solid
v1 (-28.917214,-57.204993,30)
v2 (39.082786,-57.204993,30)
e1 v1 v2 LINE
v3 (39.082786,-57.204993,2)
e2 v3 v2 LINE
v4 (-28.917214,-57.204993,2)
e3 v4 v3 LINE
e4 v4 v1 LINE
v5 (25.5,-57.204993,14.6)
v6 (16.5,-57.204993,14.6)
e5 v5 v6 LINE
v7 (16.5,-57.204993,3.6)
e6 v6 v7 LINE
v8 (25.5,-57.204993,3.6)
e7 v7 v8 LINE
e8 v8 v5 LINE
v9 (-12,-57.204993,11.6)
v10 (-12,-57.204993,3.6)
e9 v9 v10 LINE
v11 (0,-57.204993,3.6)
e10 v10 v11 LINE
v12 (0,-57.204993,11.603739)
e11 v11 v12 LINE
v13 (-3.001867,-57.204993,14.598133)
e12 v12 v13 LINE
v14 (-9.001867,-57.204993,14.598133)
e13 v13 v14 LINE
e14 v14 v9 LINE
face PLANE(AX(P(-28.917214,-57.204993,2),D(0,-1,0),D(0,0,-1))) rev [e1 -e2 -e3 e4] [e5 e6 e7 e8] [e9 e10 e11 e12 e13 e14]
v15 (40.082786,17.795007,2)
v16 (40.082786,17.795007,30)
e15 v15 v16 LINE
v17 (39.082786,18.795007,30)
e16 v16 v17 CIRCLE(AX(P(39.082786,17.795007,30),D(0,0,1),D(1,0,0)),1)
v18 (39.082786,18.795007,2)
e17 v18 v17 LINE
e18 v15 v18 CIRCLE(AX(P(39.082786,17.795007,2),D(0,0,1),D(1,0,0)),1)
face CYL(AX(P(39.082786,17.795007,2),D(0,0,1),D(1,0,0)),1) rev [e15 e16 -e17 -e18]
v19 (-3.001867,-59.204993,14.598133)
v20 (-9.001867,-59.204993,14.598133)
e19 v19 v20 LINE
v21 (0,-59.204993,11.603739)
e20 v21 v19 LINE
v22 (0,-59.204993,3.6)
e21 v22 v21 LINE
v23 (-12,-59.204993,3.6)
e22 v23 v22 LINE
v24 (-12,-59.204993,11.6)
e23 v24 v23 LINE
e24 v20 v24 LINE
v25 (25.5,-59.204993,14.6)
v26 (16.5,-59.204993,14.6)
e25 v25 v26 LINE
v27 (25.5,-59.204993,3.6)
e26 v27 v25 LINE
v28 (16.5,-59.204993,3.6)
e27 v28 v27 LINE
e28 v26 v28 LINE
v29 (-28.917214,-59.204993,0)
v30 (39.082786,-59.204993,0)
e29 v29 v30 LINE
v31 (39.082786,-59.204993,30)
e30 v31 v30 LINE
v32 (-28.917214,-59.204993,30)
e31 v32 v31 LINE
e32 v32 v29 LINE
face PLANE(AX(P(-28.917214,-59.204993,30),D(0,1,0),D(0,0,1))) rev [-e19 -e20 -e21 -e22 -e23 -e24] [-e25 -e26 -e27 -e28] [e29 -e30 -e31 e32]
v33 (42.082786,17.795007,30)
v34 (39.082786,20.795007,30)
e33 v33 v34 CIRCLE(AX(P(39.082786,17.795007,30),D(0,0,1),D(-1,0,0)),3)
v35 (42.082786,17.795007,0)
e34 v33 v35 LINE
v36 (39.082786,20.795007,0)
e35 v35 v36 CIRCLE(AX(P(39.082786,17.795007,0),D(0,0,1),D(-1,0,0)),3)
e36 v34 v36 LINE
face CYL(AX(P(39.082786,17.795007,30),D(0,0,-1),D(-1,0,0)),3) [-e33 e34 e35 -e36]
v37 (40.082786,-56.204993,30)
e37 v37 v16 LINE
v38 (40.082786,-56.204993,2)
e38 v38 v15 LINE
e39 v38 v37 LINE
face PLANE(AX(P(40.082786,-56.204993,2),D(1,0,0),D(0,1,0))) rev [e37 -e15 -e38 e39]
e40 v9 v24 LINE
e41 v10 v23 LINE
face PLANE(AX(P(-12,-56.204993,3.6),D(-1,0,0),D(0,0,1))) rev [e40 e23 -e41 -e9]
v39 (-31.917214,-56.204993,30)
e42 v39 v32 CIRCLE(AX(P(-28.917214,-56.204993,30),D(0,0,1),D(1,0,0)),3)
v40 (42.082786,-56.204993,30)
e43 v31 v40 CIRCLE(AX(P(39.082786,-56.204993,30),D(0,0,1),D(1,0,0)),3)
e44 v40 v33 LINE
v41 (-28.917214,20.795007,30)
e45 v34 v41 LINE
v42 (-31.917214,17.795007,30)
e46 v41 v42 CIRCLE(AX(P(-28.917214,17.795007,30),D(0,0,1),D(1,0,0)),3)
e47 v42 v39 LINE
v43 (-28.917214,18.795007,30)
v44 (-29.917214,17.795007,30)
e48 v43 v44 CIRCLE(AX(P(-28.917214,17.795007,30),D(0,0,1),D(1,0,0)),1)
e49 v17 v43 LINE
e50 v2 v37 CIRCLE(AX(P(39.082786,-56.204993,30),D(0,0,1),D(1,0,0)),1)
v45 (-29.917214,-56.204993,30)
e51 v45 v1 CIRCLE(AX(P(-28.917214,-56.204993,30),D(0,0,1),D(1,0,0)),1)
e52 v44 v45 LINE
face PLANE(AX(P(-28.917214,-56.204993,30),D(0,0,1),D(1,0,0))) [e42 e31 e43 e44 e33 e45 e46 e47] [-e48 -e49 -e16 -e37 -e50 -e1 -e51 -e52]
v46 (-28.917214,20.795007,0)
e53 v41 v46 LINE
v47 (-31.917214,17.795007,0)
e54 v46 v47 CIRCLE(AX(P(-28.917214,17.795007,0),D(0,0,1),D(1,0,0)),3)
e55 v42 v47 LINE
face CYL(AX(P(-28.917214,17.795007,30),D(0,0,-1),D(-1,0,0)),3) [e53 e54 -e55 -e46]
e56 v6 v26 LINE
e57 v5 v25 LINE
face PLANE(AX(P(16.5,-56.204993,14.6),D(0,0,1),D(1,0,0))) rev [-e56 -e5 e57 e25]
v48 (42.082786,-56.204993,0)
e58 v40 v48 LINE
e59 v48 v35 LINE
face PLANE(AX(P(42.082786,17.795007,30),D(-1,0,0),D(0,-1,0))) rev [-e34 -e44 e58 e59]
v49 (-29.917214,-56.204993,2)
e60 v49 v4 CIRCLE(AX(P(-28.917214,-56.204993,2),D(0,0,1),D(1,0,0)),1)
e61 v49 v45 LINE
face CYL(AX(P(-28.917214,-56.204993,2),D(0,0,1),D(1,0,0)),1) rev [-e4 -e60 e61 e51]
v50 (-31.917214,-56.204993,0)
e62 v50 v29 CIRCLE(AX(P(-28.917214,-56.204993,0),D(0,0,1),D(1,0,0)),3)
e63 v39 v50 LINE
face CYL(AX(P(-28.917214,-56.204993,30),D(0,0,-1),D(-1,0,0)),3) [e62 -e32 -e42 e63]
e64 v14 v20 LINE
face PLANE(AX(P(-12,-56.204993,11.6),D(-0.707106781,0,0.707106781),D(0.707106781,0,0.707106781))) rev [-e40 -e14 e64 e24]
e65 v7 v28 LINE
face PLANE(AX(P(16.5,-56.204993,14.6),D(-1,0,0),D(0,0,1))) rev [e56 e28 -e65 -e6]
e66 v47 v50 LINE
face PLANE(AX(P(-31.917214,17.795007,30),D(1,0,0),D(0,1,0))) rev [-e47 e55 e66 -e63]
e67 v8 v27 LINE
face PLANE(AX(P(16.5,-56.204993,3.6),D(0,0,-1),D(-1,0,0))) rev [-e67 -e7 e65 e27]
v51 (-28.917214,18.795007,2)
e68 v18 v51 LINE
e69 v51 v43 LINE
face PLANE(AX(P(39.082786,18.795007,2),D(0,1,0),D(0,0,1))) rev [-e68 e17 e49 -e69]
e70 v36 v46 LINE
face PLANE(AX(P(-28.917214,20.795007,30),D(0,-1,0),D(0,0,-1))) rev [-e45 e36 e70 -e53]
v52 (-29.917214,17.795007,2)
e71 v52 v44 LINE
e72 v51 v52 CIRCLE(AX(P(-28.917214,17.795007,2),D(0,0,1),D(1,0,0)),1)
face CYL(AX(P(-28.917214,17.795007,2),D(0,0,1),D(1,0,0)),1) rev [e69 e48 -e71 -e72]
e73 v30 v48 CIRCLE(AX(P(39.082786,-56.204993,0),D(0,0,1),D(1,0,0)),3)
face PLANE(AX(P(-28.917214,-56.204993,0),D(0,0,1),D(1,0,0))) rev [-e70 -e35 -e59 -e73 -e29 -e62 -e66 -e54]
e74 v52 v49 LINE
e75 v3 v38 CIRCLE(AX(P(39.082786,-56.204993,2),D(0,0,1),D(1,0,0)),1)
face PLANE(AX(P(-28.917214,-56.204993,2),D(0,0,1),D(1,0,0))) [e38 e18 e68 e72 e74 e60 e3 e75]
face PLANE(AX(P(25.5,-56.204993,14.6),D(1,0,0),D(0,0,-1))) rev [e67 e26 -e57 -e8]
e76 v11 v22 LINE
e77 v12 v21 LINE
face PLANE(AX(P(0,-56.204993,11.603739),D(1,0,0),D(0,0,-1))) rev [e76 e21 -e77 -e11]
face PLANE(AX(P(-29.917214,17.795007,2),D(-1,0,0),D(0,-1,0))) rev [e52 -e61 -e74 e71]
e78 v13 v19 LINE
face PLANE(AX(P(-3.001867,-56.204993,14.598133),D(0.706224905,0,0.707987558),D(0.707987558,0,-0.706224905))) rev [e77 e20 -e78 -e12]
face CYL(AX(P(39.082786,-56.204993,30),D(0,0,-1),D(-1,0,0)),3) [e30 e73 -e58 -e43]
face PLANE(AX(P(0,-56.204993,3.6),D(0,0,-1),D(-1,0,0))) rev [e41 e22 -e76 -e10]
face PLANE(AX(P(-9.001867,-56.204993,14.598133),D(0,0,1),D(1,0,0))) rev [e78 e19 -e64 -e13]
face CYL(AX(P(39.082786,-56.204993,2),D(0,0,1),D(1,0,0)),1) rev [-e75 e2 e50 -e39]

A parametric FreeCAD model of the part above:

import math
import FreeCAD as App
import Part
import Sketcher

V = App.Vector
Q = App.Units.Quantity


def add_polygon(sketch, points):
    """Adds a closed chain of lines whose ends are joined by coincident constraints."""
    first, n = sketch.GeometryCount, len(points)
    for a, b in zip(points, points[1:] + points[:1]):
        sketch.addGeometry(Part.LineSegment(App.Vector(*a, 0), App.Vector(*b, 0)), False)
    for i in range(n):
        sketch.addConstraint(Sketcher.Constraint("Coincident", first + i, 2, first + (i + 1) % n, 1))

doc = App.newDocument("Part")
params = doc.addObject("Spreadsheet::Sheet", "Params")
for row, (alias, value) in enumerate([
    ("sketch1_radius", "3 mm"),
    ("sketch1_width", "68 mm"),
    ("sketch1_height", "74 mm"),
    ("pad1_length", "30 mm"),
    ("sketch2_radius", "1 mm"),
    ("sketch2_width", "68 mm"),
    ("sketch2_height", "74 mm"),
    ("pocket1_length", "28 mm"),
    ("sketch3_width", "12 mm"),
    ("sketch3_width2", "6 mm"),
    ("sketch3_width3", "9 mm"),
    ("sketch3_height", "8 mm"),
    ("sketch3_height2", "11 mm"),
    ("pocket2_length", "3 mm"),
], start=1):
    params.set(f"A{row}", alias)
    params.set(f"B{row}", "=" + value)
    params.setAlias(f"B{row}", alias)

body = doc.addObject("PartDesign::Body", "Body")

# Sketch on XY plane
sketch1 = doc.addObject("Sketcher::SketchObject", "Sketch")
body.addObject(sketch1)
sketch1.AttachmentSupport = (doc.XY_Plane, [""])
sketch1.MapMode = "FlatFace"
sketch1.addGeometry(Part.LineSegment(V(39.082786, 20.795007, 0), V(-28.917214, 20.795007, 0)), False)
sketch1.addGeometry(Part.ArcOfCircle(Part.Circle(V(-28.917214, 17.795007, 0), V(0, 0, 1), 3), math.radians(90), math.radians(180)), False)
sketch1.addGeometry(Part.LineSegment(V(-31.917214, 17.795007, 0), V(-31.917214, -56.204993, 0)), False)
sketch1.addGeometry(Part.ArcOfCircle(Part.Circle(V(-28.917214, -56.204993, 0), V(0, 0, 1), 3), math.radians(-180), math.radians(-90)), False)
sketch1.addGeometry(Part.LineSegment(V(-28.917214, -59.204993, 0), V(39.082786, -59.204993, 0)), False)
sketch1.addGeometry(Part.ArcOfCircle(Part.Circle(V(39.082786, -56.204993, 0), V(0, 0, 1), 3), math.radians(-90), math.radians(0)), False)
sketch1.addGeometry(Part.LineSegment(V(42.082786, -56.204993, 0), V(42.082786, 17.795007, 0)), False)
sketch1.addGeometry(Part.ArcOfCircle(Part.Circle(V(39.082786, 17.795007, 0), V(0, 0, 1), 3), math.radians(0), math.radians(90)), False)
sketch1.addConstraint(Sketcher.Constraint("Tangent", 0, 2, 1, 1))
sketch1.addConstraint(Sketcher.Constraint("Tangent", 1, 2, 2, 1))
sketch1.addConstraint(Sketcher.Constraint("Tangent", 2, 2, 3, 1))
sketch1.addConstraint(Sketcher.Constraint("Tangent", 3, 2, 4, 1))
sketch1.addConstraint(Sketcher.Constraint("Tangent", 4, 2, 5, 1))
sketch1.addConstraint(Sketcher.Constraint("Tangent", 5, 2, 6, 1))
sketch1.addConstraint(Sketcher.Constraint("Tangent", 6, 2, 7, 1))
sketch1.addConstraint(Sketcher.Constraint("Tangent", 7, 2, 0, 1))
sketch1.addConstraint(Sketcher.Constraint("Horizontal", 0))
sketch1.addConstraint(Sketcher.Constraint("Vertical", 2))
sketch1.addConstraint(Sketcher.Constraint("Horizontal", 4))
sketch1.addConstraint(Sketcher.Constraint("Vertical", 6))
sketch1.addConstraint(Sketcher.Constraint("Equal", 1, 3))
sketch1.addConstraint(Sketcher.Constraint("Equal", 3, 5))
sketch1.addConstraint(Sketcher.Constraint("Equal", 5, 7))
sketch1.addConstraint(Sketcher.Constraint("Radius", 1, 3.0))
sketch1.addConstraint(Sketcher.Constraint("DistanceX", 0, 2, 0, 1, 68.0))
sketch1.addConstraint(Sketcher.Constraint("DistanceY", 2, 2, 2, 1, 74.0))
sketch1.addConstraint(Sketcher.Constraint("DistanceX", 1, 3, -1, 1, 28.917214))
sketch1.addConstraint(Sketcher.Constraint("DistanceY", -1, 1, 1, 3, 17.795007))
sketch1.setExpression("Constraints[15]", "Params.sketch1_radius")
sketch1.setExpression("Constraints[16]", "Params.sketch1_width")
sketch1.setExpression("Constraints[17]", "Params.sketch1_height")
pad1 = doc.addObject("PartDesign::Pad", "Pad")
body.addObject(pad1)
pad1.Profile = sketch1
pad1.setExpression("Length", "Params.pad1_length")

# Sketch on XY plane
sketch2 = doc.addObject("Sketcher::SketchObject", "Sketch001")
body.addObject(sketch2)
sketch2.AttachmentSupport = (doc.XY_Plane, [""])
sketch2.MapMode = "FlatFace"
sketch2.AttachmentOffset = App.Placement(V(0, 0, 30), App.Rotation())
sketch2.addGeometry(Part.LineSegment(V(-28.917214, -57.204993, 0), V(39.082786, -57.204993, 0)), False)
sketch2.addGeometry(Part.ArcOfCircle(Part.Circle(V(39.082786, -56.204993, 0), V(0, 0, 1), 1), math.radians(-90), math.radians(0)), False)
sketch2.addGeometry(Part.LineSegment(V(40.082786, -56.204993, 0), V(40.082786, 17.795007, 0)), False)
sketch2.addGeometry(Part.ArcOfCircle(Part.Circle(V(39.082786, 17.795007, 0), V(0, 0, 1), 1), math.radians(0), math.radians(90)), False)
sketch2.addGeometry(Part.LineSegment(V(39.082786, 18.795007, 0), V(-28.917214, 18.795007, 0)), False)
sketch2.addGeometry(Part.ArcOfCircle(Part.Circle(V(-28.917214, 17.795007, 0), V(0, 0, 1), 1), math.radians(90), math.radians(180)), False)
sketch2.addGeometry(Part.LineSegment(V(-29.917214, 17.795007, 0), V(-29.917214, -56.204993, 0)), False)
sketch2.addGeometry(Part.ArcOfCircle(Part.Circle(V(-28.917214, -56.204993, 0), V(0, 0, 1), 1), math.radians(-180), math.radians(-90)), False)
sketch2.addConstraint(Sketcher.Constraint("Tangent", 0, 2, 1, 1))
sketch2.addConstraint(Sketcher.Constraint("Tangent", 1, 2, 2, 1))
sketch2.addConstraint(Sketcher.Constraint("Tangent", 2, 2, 3, 1))
sketch2.addConstraint(Sketcher.Constraint("Tangent", 3, 2, 4, 1))
sketch2.addConstraint(Sketcher.Constraint("Tangent", 4, 2, 5, 1))
sketch2.addConstraint(Sketcher.Constraint("Tangent", 5, 2, 6, 1))
sketch2.addConstraint(Sketcher.Constraint("Tangent", 6, 2, 7, 1))
sketch2.addConstraint(Sketcher.Constraint("Tangent", 7, 2, 0, 1))
sketch2.addConstraint(Sketcher.Constraint("Horizontal", 0))
sketch2.addConstraint(Sketcher.Constraint("Vertical", 2))
sketch2.addConstraint(Sketcher.Constraint("Horizontal", 4))
sketch2.addConstraint(Sketcher.Constraint("Vertical", 6))
sketch2.addConstraint(Sketcher.Constraint("Equal", 1, 3))
sketch2.addConstraint(Sketcher.Constraint("Equal", 3, 5))
sketch2.addConstraint(Sketcher.Constraint("Equal", 5, 7))
sketch2.addConstraint(Sketcher.Constraint("Radius", 1, 1.0))
sketch2.addConstraint(Sketcher.Constraint("DistanceX", 0, 1, 0, 2, 68.0))
sketch2.addConstraint(Sketcher.Constraint("DistanceY", 2, 1, 2, 2, 74.0))
sketch2.addConstraint(Sketcher.Constraint("DistanceX", -1, 1, 1, 3, 39.082786))
sketch2.addConstraint(Sketcher.Constraint("DistanceY", 1, 3, -1, 1, 56.204993))
sketch2.setExpression("Constraints[15]", "Params.sketch2_radius")
sketch2.setExpression("Constraints[16]", "Params.sketch2_width")
sketch2.setExpression("Constraints[17]", "Params.sketch2_height")
pocket1 = doc.addObject("PartDesign::Pocket", "Pocket")
body.addObject(pocket1)
pocket1.Profile = sketch2
pocket1.setExpression("Length", "Params.pocket1_length")

# Sketch on XZ plane
sketch3 = doc.addObject("Sketcher::SketchObject", "Sketch002")
body.addObject(sketch3)
sketch3.AttachmentSupport = (doc.XZ_Plane, [""])
sketch3.MapMode = "FlatFace"
sketch3.AttachmentOffset = App.Placement(V(0, 0, 59.204993), App.Rotation())
add_polygon(sketch3, [(-9.001867, 14.598133), (-12, 11.6), (-12, 3.6), (0, 3.6), (0, 11.603739), (-3.001867, 14.598133)])  # lines 0-5
add_polygon(sketch3, [(16.5, 14.6), (16.5, 3.6), (25.5, 3.6), (25.5, 14.6)])  # lines 6-9
sketch3.addConstraint(Sketcher.Constraint("Vertical", 1))
sketch3.addConstraint(Sketcher.Constraint("Horizontal", 2))
sketch3.addConstraint(Sketcher.Constraint("Vertical", 3))
sketch3.addConstraint(Sketcher.Constraint("Horizontal", 5))
sketch3.addConstraint(Sketcher.Constraint("Vertical", 6))
sketch3.addConstraint(Sketcher.Constraint("Horizontal", 7))
sketch3.addConstraint(Sketcher.Constraint("Vertical", 8))
sketch3.addConstraint(Sketcher.Constraint("Horizontal", 9))
sketch3.addConstraint(Sketcher.Constraint("PointOnObject", 2, 2, -2))
sketch3.addConstraint(Sketcher.Constraint("Horizontal", 2, 2, 6, 2))
sketch3.addConstraint(Sketcher.Constraint("Equal", 0, 4))
sketch3.addConstraint(Sketcher.Constraint("DistanceX", 2, 1, 2, 2, 12.0))
sketch3.addConstraint(Sketcher.Constraint("DistanceX", 5, 2, 5, 1, 6.0))
sketch3.addConstraint(Sketcher.Constraint("DistanceX", 7, 1, 7, 2, 9.0))
sketch3.addConstraint(Sketcher.Constraint("DistanceY", 1, 2, 1, 1, 8.0))
sketch3.addConstraint(Sketcher.Constraint("DistanceY", 6, 2, 6, 1, 11.0))
sketch3.addConstraint(Sketcher.Constraint("Angle", 0, Q("-135 deg")))
sketch3.addConstraint(Sketcher.Constraint("DistanceY", -1, 1, 0, 2, 11.6))
sketch3.addConstraint(Sketcher.Constraint("DistanceX", -1, 1, 6, 2, 16.5))
sketch3.addConstraint(Sketcher.Constraint("Distance", 0, 4.24))
sketch3.setExpression("Constraints[21]", "Params.sketch3_width")
sketch3.setExpression("Constraints[22]", "Params.sketch3_width2")
sketch3.setExpression("Constraints[23]", "Params.sketch3_width3")
sketch3.setExpression("Constraints[24]", "Params.sketch3_height")
sketch3.setExpression("Constraints[25]", "Params.sketch3_height2")
pocket2 = doc.addObject("PartDesign::Pocket", "Pocket001")
body.addObject(pocket2)
pocket2.Profile = sketch3
pocket2.setExpression("Length", "Params.pocket2_length")

doc.recompute()
